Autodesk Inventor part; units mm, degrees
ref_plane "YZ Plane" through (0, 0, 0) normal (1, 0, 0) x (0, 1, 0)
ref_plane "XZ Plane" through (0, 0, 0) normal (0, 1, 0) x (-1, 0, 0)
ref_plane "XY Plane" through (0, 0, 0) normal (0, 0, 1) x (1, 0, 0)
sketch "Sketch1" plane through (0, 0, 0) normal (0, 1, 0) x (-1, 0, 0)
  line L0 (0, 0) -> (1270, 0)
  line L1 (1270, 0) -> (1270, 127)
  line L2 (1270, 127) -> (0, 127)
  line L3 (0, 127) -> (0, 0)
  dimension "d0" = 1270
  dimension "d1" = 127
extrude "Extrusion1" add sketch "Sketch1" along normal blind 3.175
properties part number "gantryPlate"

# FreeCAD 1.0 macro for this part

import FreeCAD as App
import Part
import Sketcher
Q = App.Units.Quantity


def add_polygon(sketch, points):
    """Adds a closed chain of lines whose ends are joined by coincident constraints."""
    first, n = sketch.GeometryCount, len(points)
    for a, b in zip(points, points[1:] + points[:1]):
        sketch.addGeometry(Part.LineSegment(App.Vector(*a, 0), App.Vector(*b, 0)), False)
    for i in range(n):
        sketch.addConstraint(Sketcher.Constraint("Coincident", first + i, 2, first + (i + 1) % n, 1))

doc = App.newDocument("Part")
params = doc.addObject("Spreadsheet::Sheet", "Params")
for row, (alias, value) in enumerate([
    ("sketch1_width", "50 in"),
    ("sketch1_height", "5 in"),
    ("pad1_length", "0.125 in"),
], start=1):
    params.set(f"A{row}", alias)
    params.set(f"B{row}", "=" + value)
    params.setAlias(f"B{row}", alias)

body = doc.addObject("PartDesign::Body", "Body")

# Sketch on XZ plane
sketch1 = body.newObject("Sketcher::SketchObject", "Sketch")
sketch1.AttachmentSupport = (doc.getObject("XZ_Plane"), [""])
sketch1.MapMode = "FlatFace"
add_polygon(sketch1, [(0, 127), (0, 0), (-1270, 0), (-1270, 127)])  # lines 0-3
sketch1.addConstraint([
    Sketcher.Constraint("Vertical", 0),
    Sketcher.Constraint("Horizontal", 1),
    Sketcher.Constraint("Vertical", 2),
    Sketcher.Constraint("Horizontal", 3),
    Sketcher.Constraint("Coincident", 0, 2, -1, 1),
    Sketcher.Constraint("DistanceX", 1, 2, 1, 1, Q("50 in")),
    Sketcher.Constraint("DistanceY", 0, 2, 0, 1, Q("5 in")),
])
sketch1.setExpression("Constraints[9]", "Params.sketch1_width")
sketch1.setExpression("Constraints[10]", "Params.sketch1_height")
pad1 = body.newObject("PartDesign::Pad", "Pad")
pad1.Profile = sketch1
pad1.setExpression("Length", "Params.pad1_length")
pad1.Reversed = True

doc.recompute()
